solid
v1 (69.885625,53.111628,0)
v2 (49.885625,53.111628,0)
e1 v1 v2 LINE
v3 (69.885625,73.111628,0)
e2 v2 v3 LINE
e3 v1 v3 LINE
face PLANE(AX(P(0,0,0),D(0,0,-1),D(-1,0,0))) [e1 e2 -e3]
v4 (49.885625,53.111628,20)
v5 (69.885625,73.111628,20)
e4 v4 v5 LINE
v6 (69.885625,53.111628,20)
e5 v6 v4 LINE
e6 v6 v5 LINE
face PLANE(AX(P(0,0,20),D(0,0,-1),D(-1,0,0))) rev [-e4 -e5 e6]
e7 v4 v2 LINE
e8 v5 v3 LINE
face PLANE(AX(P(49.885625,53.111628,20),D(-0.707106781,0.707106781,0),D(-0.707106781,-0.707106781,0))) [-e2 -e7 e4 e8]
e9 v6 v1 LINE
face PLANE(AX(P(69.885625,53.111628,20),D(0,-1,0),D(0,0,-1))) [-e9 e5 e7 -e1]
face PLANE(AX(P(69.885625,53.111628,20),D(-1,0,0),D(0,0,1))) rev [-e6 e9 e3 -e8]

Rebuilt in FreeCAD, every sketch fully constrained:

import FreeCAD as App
import Part
import Sketcher
Q = App.Units.Quantity


def add_polygon(sketch, points):
    """Adds a closed chain of lines whose ends are joined by coincident constraints."""
    first, n = sketch.GeometryCount, len(points)
    for a, b in zip(points, points[1:] + points[:1]):
        sketch.addGeometry(Part.LineSegment(App.Vector(*a, 0), App.Vector(*b, 0)), False)
    for i in range(n):
        sketch.addConstraint(Sketcher.Constraint("Coincident", first + i, 2, first + (i + 1) % n, 1))

doc = App.newDocument("Part")
params = doc.addObject("Spreadsheet::Sheet", "Params")
for row, (alias, value) in enumerate([
    ("sketch1_width", "20 mm"),
    ("pad1_length", "20 mm"),
], start=1):
    params.set(f"A{row}", alias)
    params.set(f"B{row}", "=" + value)
    params.setAlias(f"B{row}", alias)

body = doc.addObject("PartDesign::Body", "Body")

# Sketch on XY plane
sketch1 = body.newObject("Sketcher::SketchObject", "Sketch")
sketch1.AttachmentSupport = (doc.getObject("XY_Plane"), [""])
sketch1.MapMode = "FlatFace"
add_polygon(sketch1, [(70, 53), (70, 73), (50, 53)])  # lines 0-2
sketch1.addConstraint([
    Sketcher.Constraint("Vertical", 0),
    Sketcher.Constraint("Horizontal", 2),
    Sketcher.Constraint("Equal", 2, 0),
    Sketcher.Constraint("DistanceX", 2, 1, 2, 2, Q("20 mm")),
    Sketcher.Constraint("DistanceY", -1, 1, 0, 2, Q("73.111628 mm")),
    Sketcher.Constraint("DistanceX", -1, 1, 0, 2, Q("69.885625 mm")),
])
sketch1.setExpression("Constraints[6]", "Params.sketch1_width")
pad1 = body.newObject("PartDesign::Pad", "Pad")
pad1.Profile = sketch1
pad1.setExpression("Length", "Params.pad1_length")

doc.recompute()
